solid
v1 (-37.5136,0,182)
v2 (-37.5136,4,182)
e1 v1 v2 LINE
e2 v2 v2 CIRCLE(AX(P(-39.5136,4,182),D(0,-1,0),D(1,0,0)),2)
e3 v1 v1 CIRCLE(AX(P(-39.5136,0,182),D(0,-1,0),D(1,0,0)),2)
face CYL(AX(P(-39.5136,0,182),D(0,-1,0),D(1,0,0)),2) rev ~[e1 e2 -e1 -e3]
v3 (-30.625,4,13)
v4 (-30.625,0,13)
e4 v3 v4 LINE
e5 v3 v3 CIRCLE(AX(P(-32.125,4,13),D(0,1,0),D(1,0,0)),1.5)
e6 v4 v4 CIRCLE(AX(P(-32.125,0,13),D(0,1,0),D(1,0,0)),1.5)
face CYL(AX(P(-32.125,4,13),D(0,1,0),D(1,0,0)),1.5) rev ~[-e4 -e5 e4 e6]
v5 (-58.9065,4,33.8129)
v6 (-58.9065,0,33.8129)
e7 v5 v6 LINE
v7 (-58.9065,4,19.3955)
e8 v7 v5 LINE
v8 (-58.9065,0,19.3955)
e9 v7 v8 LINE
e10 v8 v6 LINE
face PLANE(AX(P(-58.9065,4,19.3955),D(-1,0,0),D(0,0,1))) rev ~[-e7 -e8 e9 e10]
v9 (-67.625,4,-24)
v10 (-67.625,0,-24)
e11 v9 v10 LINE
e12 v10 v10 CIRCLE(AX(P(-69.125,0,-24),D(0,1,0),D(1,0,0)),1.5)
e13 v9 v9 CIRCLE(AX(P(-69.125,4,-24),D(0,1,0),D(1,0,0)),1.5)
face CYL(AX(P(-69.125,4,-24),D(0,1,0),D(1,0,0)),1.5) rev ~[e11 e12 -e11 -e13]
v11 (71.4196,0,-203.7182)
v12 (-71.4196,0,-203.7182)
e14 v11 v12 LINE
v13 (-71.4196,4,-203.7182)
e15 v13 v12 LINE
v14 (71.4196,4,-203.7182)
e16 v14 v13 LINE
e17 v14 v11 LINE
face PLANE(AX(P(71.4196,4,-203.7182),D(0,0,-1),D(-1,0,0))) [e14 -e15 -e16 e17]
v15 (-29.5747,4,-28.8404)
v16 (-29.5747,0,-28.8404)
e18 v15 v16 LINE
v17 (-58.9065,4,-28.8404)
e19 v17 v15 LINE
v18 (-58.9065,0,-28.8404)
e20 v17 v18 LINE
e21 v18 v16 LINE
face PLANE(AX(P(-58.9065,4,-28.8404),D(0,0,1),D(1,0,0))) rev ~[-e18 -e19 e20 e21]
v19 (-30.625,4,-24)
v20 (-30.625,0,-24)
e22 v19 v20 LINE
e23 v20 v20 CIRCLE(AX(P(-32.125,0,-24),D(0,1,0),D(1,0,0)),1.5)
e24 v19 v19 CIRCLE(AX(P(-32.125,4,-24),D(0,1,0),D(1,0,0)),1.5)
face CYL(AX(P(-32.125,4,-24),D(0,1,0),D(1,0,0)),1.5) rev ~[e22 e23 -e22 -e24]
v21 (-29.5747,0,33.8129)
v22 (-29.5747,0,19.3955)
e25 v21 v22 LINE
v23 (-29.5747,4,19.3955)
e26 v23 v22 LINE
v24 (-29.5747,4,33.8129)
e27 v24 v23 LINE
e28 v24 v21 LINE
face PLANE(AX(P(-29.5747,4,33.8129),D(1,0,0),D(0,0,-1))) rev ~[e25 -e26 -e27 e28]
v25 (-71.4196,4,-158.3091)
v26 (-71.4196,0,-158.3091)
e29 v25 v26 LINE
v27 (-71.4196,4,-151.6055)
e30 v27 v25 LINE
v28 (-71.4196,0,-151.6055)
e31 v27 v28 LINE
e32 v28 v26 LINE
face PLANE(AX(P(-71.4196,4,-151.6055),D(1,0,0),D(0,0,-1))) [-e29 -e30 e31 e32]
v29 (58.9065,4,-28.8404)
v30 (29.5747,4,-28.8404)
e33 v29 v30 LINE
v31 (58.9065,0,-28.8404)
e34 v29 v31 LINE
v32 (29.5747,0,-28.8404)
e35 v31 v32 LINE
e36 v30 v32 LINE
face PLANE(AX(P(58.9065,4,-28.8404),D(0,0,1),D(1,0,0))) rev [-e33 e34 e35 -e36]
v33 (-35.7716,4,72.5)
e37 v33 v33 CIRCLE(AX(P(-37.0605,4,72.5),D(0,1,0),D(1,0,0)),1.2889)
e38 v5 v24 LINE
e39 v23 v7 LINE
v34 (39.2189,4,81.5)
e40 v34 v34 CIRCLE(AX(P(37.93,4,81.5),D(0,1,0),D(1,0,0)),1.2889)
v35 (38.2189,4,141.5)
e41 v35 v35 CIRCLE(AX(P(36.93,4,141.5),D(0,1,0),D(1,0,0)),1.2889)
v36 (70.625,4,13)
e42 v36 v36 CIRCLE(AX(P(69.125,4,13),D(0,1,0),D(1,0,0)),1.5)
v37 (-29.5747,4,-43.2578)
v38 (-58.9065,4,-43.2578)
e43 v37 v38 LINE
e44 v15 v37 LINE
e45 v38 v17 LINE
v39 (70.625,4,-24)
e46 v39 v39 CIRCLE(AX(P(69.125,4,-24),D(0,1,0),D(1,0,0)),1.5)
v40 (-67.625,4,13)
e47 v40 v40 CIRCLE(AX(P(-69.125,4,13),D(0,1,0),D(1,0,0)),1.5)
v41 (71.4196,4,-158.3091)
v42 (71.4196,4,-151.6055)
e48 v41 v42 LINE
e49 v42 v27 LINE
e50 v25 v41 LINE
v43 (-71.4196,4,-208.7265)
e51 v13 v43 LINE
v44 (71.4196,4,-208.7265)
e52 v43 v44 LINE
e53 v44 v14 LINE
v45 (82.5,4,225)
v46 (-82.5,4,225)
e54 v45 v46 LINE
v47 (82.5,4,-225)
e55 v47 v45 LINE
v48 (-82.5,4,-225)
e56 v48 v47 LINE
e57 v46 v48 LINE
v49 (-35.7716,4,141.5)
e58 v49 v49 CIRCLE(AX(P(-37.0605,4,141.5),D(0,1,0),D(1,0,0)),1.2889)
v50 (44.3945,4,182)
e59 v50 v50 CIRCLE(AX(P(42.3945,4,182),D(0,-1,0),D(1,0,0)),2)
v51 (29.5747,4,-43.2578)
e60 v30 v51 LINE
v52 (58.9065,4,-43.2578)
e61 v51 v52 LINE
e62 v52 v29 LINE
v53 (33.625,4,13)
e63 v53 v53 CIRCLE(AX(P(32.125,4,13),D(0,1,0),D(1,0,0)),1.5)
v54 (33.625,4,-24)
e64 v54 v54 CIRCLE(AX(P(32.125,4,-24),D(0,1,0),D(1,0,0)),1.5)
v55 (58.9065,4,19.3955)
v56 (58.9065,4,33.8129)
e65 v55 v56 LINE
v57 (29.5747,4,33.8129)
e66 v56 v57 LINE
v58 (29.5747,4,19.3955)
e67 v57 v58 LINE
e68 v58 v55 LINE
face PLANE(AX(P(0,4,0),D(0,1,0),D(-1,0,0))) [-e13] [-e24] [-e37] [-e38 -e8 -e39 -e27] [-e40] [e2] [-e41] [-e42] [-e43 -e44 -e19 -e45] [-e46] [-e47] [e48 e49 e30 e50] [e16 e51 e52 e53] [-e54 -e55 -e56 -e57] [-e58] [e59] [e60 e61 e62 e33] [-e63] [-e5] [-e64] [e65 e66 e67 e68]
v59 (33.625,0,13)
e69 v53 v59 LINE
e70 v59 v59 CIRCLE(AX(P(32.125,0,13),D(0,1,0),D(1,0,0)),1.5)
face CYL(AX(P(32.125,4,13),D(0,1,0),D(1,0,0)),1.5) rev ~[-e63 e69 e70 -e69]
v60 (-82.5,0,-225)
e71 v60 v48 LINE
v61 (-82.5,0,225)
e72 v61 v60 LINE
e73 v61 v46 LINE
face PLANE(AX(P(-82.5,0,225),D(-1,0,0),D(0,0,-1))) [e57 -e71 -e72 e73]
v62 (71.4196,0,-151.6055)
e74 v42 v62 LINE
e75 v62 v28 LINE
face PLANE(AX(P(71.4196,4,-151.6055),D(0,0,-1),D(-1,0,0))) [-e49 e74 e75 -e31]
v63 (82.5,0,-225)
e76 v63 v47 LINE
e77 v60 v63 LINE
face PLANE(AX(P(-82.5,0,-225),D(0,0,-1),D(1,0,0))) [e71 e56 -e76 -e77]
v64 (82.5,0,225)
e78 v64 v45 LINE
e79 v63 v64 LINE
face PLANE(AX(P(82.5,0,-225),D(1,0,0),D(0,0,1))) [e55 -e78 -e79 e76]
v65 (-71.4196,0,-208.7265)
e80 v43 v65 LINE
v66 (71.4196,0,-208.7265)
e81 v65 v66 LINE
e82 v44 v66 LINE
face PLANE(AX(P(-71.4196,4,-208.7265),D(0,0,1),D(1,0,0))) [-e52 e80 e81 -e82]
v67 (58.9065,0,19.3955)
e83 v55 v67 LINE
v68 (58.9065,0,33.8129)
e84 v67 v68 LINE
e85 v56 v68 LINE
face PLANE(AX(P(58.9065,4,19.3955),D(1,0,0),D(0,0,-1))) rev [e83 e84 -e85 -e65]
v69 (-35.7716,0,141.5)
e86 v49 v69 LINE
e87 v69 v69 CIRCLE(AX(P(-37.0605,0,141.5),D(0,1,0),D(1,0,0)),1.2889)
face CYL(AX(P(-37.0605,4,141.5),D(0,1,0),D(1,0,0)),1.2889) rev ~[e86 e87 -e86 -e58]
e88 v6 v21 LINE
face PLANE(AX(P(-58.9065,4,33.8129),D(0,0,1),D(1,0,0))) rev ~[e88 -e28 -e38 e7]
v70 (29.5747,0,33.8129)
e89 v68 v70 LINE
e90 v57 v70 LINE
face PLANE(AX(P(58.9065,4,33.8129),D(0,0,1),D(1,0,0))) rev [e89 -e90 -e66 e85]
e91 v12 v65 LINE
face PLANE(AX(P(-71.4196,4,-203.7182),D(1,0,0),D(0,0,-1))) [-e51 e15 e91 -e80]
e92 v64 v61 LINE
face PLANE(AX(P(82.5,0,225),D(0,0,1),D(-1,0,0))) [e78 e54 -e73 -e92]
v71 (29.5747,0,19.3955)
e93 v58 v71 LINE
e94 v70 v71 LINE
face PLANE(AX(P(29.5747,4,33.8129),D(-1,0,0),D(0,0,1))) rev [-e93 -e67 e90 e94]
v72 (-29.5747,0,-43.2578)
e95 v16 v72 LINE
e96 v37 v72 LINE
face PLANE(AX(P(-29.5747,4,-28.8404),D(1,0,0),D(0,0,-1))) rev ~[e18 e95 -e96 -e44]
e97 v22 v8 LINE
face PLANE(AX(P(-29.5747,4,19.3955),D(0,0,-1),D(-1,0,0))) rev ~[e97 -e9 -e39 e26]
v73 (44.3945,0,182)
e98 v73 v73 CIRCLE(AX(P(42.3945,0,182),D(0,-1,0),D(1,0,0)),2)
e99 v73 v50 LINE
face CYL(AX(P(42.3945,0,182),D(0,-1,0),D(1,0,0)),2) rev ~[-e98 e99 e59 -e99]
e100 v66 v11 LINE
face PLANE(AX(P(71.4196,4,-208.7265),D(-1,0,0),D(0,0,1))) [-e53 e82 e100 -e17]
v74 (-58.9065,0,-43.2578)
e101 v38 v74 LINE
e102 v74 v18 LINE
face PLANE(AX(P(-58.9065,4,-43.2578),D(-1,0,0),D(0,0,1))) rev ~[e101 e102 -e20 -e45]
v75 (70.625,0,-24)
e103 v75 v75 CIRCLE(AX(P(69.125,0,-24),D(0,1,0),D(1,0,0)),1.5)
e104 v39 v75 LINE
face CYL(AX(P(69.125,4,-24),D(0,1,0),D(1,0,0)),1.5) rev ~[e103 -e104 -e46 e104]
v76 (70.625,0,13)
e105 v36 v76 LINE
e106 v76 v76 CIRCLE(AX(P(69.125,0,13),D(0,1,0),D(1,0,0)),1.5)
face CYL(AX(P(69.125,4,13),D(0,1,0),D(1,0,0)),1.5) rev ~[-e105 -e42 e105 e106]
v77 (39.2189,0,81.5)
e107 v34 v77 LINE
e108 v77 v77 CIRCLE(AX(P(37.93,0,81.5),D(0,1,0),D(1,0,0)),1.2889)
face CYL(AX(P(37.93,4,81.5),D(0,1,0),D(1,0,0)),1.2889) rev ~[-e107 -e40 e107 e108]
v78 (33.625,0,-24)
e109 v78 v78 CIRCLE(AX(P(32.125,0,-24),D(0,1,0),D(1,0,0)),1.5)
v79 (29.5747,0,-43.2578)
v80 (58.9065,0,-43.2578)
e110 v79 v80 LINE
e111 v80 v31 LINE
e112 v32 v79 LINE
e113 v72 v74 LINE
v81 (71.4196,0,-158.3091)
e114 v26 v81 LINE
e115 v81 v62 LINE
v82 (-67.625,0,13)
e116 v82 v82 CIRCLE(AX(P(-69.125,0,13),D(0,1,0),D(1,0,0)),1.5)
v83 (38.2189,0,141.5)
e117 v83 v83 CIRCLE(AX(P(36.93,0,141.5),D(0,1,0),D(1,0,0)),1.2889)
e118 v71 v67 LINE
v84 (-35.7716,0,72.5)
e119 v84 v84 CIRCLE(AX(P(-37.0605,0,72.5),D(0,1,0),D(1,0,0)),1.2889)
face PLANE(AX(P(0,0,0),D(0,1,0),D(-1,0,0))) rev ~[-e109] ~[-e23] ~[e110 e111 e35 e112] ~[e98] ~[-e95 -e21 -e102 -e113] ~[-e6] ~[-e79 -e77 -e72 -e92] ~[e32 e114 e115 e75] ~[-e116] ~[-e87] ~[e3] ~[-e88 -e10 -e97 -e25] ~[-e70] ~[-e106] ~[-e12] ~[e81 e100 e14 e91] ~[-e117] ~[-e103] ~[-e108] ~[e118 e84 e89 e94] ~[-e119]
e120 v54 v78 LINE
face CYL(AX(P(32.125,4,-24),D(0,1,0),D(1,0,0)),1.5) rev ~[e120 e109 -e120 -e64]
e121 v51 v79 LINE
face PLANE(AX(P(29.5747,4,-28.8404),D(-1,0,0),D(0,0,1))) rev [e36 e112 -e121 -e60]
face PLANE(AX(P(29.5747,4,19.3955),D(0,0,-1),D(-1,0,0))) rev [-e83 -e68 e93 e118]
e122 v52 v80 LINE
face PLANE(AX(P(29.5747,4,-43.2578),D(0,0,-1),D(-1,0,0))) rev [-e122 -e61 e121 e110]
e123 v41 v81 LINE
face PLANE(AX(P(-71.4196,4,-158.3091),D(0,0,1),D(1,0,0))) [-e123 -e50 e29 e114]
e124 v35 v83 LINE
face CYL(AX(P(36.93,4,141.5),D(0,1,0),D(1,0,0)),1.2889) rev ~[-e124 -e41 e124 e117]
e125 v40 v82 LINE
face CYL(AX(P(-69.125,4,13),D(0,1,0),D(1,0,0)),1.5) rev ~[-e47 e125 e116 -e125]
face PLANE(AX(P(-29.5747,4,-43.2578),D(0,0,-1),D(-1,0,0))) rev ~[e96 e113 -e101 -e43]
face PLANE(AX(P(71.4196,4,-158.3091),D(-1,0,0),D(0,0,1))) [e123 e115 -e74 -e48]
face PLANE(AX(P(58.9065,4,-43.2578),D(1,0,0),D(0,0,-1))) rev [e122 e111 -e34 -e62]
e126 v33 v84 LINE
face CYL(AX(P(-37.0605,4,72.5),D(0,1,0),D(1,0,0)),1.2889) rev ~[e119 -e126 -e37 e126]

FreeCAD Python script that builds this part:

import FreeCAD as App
import Part
import Sketcher


def add_polygon(sketch, points):
    """Adds a closed chain of lines whose ends are joined by coincident constraints."""
    first, n = sketch.GeometryCount, len(points)
    for a, b in zip(points, points[1:] + points[:1]):
        sketch.addGeometry(Part.LineSegment(App.Vector(*a, 0), App.Vector(*b, 0)), False)
    for i in range(n):
        sketch.addConstraint(Sketcher.Constraint("Coincident", first + i, 2, first + (i + 1) % n, 1))

doc = App.newDocument("Part")
body = doc.addObject("PartDesign::Body", "Body")

# Sketch on XZ plane
sketch1 = doc.addObject("Sketcher::SketchObject", "Sketch")
body.addObject(sketch1)
sketch1.AttachmentSupport = (doc.XZ_Plane, [""])
sketch1.MapMode = "FlatFace"
add_polygon(sketch1, [(-82, 225), (82, 225), (82, -225), (-82, -225)])  # lines 0-3
sketch1.addConstraint(Sketcher.Constraint("Horizontal", 0))
sketch1.addConstraint(Sketcher.Constraint("Vertical", 1))
sketch1.addConstraint(Sketcher.Constraint("Horizontal", 2))
sketch1.addConstraint(Sketcher.Constraint("Vertical", 3))
sketch1.addConstraint(Sketcher.Constraint("Symmetric", 0, 2, 2, 2, -1, 1))
sketch1.addConstraint(Sketcher.Constraint("DistanceX", 0, 1, 0, 2, 165.0))
sketch1.addConstraint(Sketcher.Constraint("DistanceY", 1, 2, 1, 1, 450.0))
pad1 = doc.addObject("PartDesign::Pad", "Pad")
body.addObject(pad1)
pad1.Profile = sketch1
pad1.Length = 4
pad1.Reversed = True

# Sketch on XZ plane
sketch2 = doc.addObject("Sketcher::SketchObject", "Sketch001")
body.addObject(sketch2)
sketch2.AttachmentSupport = (doc.XZ_Plane, [""])
sketch2.MapMode = "FlatFace"
sketch2.addGeometry(Part.Circle(App.Vector(42.4, 182, 0), App.Vector(0, 0, 1), 2), False)
sketch2.addGeometry(Part.Circle(App.Vector(-39.5, 182, 0), App.Vector(0, 0, 1), 2), False)
sketch2.addConstraint(Sketcher.Constraint("Equal", 0, 1))
sketch2.addConstraint(Sketcher.Constraint("Horizontal", 0, 3, 1, 3))
sketch2.addConstraint(Sketcher.Constraint("Diameter", 0, 4.0))
sketch2.addConstraint(Sketcher.Constraint("DistanceY", -1, 1, 0, 3, 182.0))
sketch2.addConstraint(Sketcher.Constraint("DistanceX", 1, 3, 0, 3, 81.908))
sketch2.addConstraint(Sketcher.Constraint("DistanceX", -1, 1, 0, 3, 42.3945))
pocket1 = doc.addObject("PartDesign::Pocket", "Pocket")
body.addObject(pocket1)
pocket1.Profile = sketch2
pocket1.Length = 4

# Sketch on XZ plane
sketch3 = doc.addObject("Sketcher::SketchObject", "Sketch002")
body.addObject(sketch3)
sketch3.AttachmentSupport = (doc.XZ_Plane, [""])
sketch3.MapMode = "FlatFace"
sketch3.AttachmentOffset = App.Placement(App.Vector(0, 0, -4), App.Rotation())
sketch3.addGeometry(Part.Circle(App.Vector(37.9, 81.5, 0), App.Vector(0, 0, 1), 1.3), False)
sketch3.addGeometry(Part.Circle(App.Vector(-37.1, 72.5, 0), App.Vector(0, 0, 1), 1.3), False)
sketch3.addGeometry(Part.Circle(App.Vector(-37.1, 141.5, 0), App.Vector(0, 0, 1), 1.3), False)
sketch3.addGeometry(Part.Circle(App.Vector(36.9, 141.5, 0), App.Vector(0, 0, 1), 1.3), False)
sketch3.addGeometry(Part.Circle(App.Vector(32.1, 13, 0), App.Vector(0, 0, 1), 1.5), False)
sketch3.addGeometry(Part.Circle(App.Vector(69.1, 13, 0), App.Vector(0, 0, 1), 1.5), False)
sketch3.addGeometry(Part.Circle(App.Vector(69.1, -24, 0), App.Vector(0, 0, 1), 1.5), False)
sketch3.addGeometry(Part.Circle(App.Vector(32.1, -24, 0), App.Vector(0, 0, 1), 1.5), False)
sketch3.addGeometry(Part.Circle(App.Vector(-32.1, -24, 0), App.Vector(0, 0, 1), 1.5), False)
sketch3.addGeometry(Part.Circle(App.Vector(-69.1, -24, 0), App.Vector(0, 0, 1), 1.5), False)
sketch3.addGeometry(Part.Circle(App.Vector(-69.1, 13, 0), App.Vector(0, 0, 1), 1.5), False)
sketch3.addGeometry(Part.Circle(App.Vector(-32.1, 13, 0), App.Vector(0, 0, 1), 1.5), False)
sketch3.addConstraint(Sketcher.Constraint("Equal", 0, 1))
sketch3.addConstraint(Sketcher.Constraint("Equal", 1, 2))
sketch3.addConstraint(Sketcher.Constraint("Equal", 2, 3))
sketch3.addConstraint(Sketcher.Constraint("Equal", 4, 5))
sketch3.addConstraint(Sketcher.Constraint("Equal", 5, 6))
sketch3.addConstraint(Sketcher.Constraint("Equal", 6, 7))
sketch3.addConstraint(Sketcher.Constraint("Equal", 7, 8))
sketch3.addConstraint(Sketcher.Constraint("Equal", 8, 9))
sketch3.addConstraint(Sketcher.Constraint("Equal", 9, 10))
sketch3.addConstraint(Sketcher.Constraint("Equal", 10, 11))
sketch3.addConstraint(Sketcher.Constraint("Symmetric", 7, 3, 8, 3, -2))
sketch3.addConstraint(Sketcher.Constraint("Symmetric", 6, 3, 9, 3, -2))
sketch3.addConstraint(Sketcher.Constraint("Symmetric", 5, 3, 10, 3, -2))
sketch3.addConstraint(Sketcher.Constraint("Symmetric", 4, 3, 11, 3, -2))
sketch3.addConstraint(Sketcher.Constraint("Horizontal", 2, 3, 3, 3))
sketch3.addConstraint(Sketcher.Constraint("Horizontal", 4, 3, 5, 3))
sketch3.addConstraint(Sketcher.Constraint("Horizontal", 6, 3, 7, 3))
sketch3.addConstraint(Sketcher.Constraint("Vertical", 1, 3, 2, 3))
sketch3.addConstraint(Sketcher.Constraint("Vertical", 5, 3, 6, 3))
sketch3.addConstraint(Sketcher.Constraint("Vertical", 4, 3, 7, 3))
sketch3.addConstraint(Sketcher.Constraint("Diameter", 4, 3.0))
sketch3.addConstraint(Sketcher.Constraint("DistanceY", -1, 1, 4, 3, 13.0))
sketch3.addConstraint(Sketcher.Constraint("DistanceY", 6, 3, -1, 1, 24.0))
sketch3.addConstraint(Sketcher.Constraint("DistanceY", 1, 3, 0, 3, 9.0))
sketch3.addConstraint(Sketcher.Constraint("DistanceY", 1, 3, 2, 3, 69.0))
sketch3.addConstraint(Sketcher.Constraint("DistanceX", 3, 3, 0, 3, 1.0))
sketch3.addConstraint(Sketcher.Constraint("DistanceX", 4, 3, 5, 3, 37.0))
sketch3.addConstraint(Sketcher.Constraint("Diameter", 0, 2.5778))
sketch3.addConstraint(Sketcher.Constraint("DistanceY", -1, 1, 0, 3, 81.5))
sketch3.addConstraint(Sketcher.Constraint("DistanceX", -1, 1, 0, 3, 37.93))
sketch3.addConstraint(Sketcher.Constraint("DistanceX", 8, 3, 7, 3, 64.25))
sketch3.addConstraint(Sketcher.Constraint("DistanceX", 1, 3, -1, 1, 37.0605))
pocket2 = doc.addObject("PartDesign::Pocket", "Pocket001")
body.addObject(pocket2)
pocket2.Profile = sketch3
pocket2.Length = 4
pocket2.Reversed = True

# Sketch on XZ plane
sketch4 = doc.addObject("Sketcher::SketchObject", "Sketch003")
body.addObject(sketch4)
sketch4.AttachmentSupport = (doc.XZ_Plane, [""])
sketch4.MapMode = "FlatFace"
sketch4.AttachmentOffset = App.Placement(App.Vector(0, 0, -4), App.Rotation())
add_polygon(sketch4, [(-59, -43), (-59, -29), (-30, -29), (-30, -43)])  # lines 0-3
add_polygon(sketch4, [(-59, 19), (-59, 34), (-30, 34), (-30, 19)])  # lines 4-7
sketch4.addConstraint(Sketcher.Constraint("Vertical", 0))
sketch4.addConstraint(Sketcher.Constraint("Horizontal", 1))
sketch4.addConstraint(Sketcher.Constraint("Vertical", 2))
sketch4.addConstraint(Sketcher.Constraint("Horizontal", 3))
sketch4.addConstraint(Sketcher.Constraint("Vertical", 4))
sketch4.addConstraint(Sketcher.Constraint("Horizontal", 5))
sketch4.addConstraint(Sketcher.Constraint("Vertical", 6))
sketch4.addConstraint(Sketcher.Constraint("Horizontal", 7))
sketch4.addConstraint(Sketcher.Constraint("Vertical", 3, 2, 4, 2))
sketch4.addConstraint(Sketcher.Constraint("Vertical", 2, 2, 5, 2))
sketch4.addConstraint(Sketcher.Constraint("Equal", 2, 4))
sketch4.addConstraint(Sketcher.Constraint("DistanceX", 1, 1, 1, 2, 29.3318))
sketch4.addConstraint(Sketcher.Constraint("DistanceY", 0, 1, 0, 2, 14.4174))
sketch4.addConstraint(Sketcher.Constraint("DistanceY", -1, 1, 4, 2, 33.813))
sketch4.addConstraint(Sketcher.Constraint("DistanceY", 1, 2, 6, 2, 48.236))
sketch4.addConstraint(Sketcher.Constraint("DistanceX", 0, 2, -1, 1, 58.9065))
pocket3 = doc.addObject("PartDesign::Pocket", "Pocket002")
body.addObject(pocket3)
pocket3.Profile = sketch4
pocket3.Length = 4
pocket3.Reversed = True
doc.recompute()

mirrored = doc.addObject("PartDesign::Mirrored", "Mirrored")
body.addObject(mirrored)
mirrored.Originals = [pocket3]
mirrored.MirrorPlane = (doc.YZ_Plane, [""])
body.Tip = mirrored

# Sketch on XZ plane
sketch5 = doc.addObject("Sketcher::SketchObject", "Sketch004")
body.addObject(sketch5)
sketch5.AttachmentSupport = (doc.XZ_Plane, [""])
sketch5.MapMode = "FlatFace"
sketch5.AttachmentOffset = App.Placement(App.Vector(0, 0, -4), App.Rotation())
add_polygon(sketch5, [(-71, -152), (71, -152), (71, -158), (-71, -158)])  # lines 0-3
add_polygon(sketch5, [(-71, -204), (71, -204), (71, -209), (-71, -209)])  # lines 4-7
sketch5.addConstraint(Sketcher.Constraint("Horizontal", 0))
sketch5.addConstraint(Sketcher.Constraint("Vertical", 1))
sketch5.addConstraint(Sketcher.Constraint("Horizontal", 2))
sketch5.addConstraint(Sketcher.Constraint("Vertical", 3))
sketch5.addConstraint(Sketcher.Constraint("Horizontal", 4))
sketch5.addConstraint(Sketcher.Constraint("Vertical", 5))
sketch5.addConstraint(Sketcher.Constraint("Horizontal", 6))
sketch5.addConstraint(Sketcher.Constraint("Vertical", 7))
sketch5.addConstraint(Sketcher.Constraint("Vertical", 1, 2, 4, 2))
sketch5.addConstraint(Sketcher.Constraint("Vertical", 3, 2, 6, 2))
sketch5.addConstraint(Sketcher.Constraint("DistanceX", 0, 1, 0, 2, 142.8392))
sketch5.addConstraint(Sketcher.Constraint("DistanceY", 1, 2, 1, 1, 6.7036))
sketch5.addConstraint(Sketcher.Constraint("DistanceY", 5, 2, 5, 1, 5.0083))
sketch5.addConstraint(Sketcher.Constraint("DistanceY", 1, 2, -1, 1, 158.309))
sketch5.addConstraint(Sketcher.Constraint("DistanceY", 4, 2, 1, 2, 45.409))
sketch5.addConstraint(Sketcher.Constraint("DistanceX", -1, 1, 0, 2, 71.4196))
pocket4 = doc.addObject("PartDesign::Pocket", "Pocket003")
body.addObject(pocket4)
pocket4.Profile = sketch5
pocket4.Length = 4
pocket4.Reversed = True

doc.recompute()
